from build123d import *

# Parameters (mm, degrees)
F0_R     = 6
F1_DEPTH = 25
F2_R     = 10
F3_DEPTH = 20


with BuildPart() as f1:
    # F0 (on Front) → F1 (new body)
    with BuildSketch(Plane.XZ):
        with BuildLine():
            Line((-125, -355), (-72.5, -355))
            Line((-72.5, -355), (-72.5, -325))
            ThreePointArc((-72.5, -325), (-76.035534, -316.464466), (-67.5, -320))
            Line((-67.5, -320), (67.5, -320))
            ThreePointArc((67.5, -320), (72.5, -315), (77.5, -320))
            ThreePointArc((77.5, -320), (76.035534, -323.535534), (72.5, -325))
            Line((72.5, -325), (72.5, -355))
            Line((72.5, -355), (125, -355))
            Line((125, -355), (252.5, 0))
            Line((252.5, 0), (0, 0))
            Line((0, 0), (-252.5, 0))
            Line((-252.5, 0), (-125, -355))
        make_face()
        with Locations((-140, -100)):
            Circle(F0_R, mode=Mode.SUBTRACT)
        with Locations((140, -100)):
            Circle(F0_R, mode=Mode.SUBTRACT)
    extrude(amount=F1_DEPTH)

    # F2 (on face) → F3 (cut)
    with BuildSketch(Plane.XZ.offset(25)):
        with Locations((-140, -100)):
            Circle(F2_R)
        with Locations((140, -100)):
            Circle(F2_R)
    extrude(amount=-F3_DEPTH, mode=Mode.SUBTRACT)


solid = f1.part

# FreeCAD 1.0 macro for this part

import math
import FreeCAD as App
import Part
import Sketcher
from FreeCAD import Vector

doc = App.newDocument("Part")
body = doc.addObject("PartDesign::Body", "Body")

sketch1 = body.newObject("Sketcher::SketchObject", "Sketch")
sketch1.AttachmentSupport = (doc.getObject("XZ_Plane"), [""])
sketch1.MapMode = "FlatFace"
sketch1.addGeometry([
    Part.LineSegment(Vector(-125, -355, 0), Vector(-72.5, -355, 0)),
    Part.LineSegment(Vector(-72.5, -355, 0), Vector(-72.5, -325, 0)),
    Part.ArcOfCircle(Part.Circle(Vector(-72.5, -320, 0), Vector(0, 0, 1), 5), math.radians(0), math.radians(270)),
    Part.LineSegment(Vector(-67.5, -320, 0), Vector(67.5, -320, 0)),
    Part.ArcOfCircle(Part.Circle(Vector(72.5, -320, 0), Vector(0, 0, 1), 5), math.radians(0), math.radians(180)),
    Part.ArcOfCircle(Part.Circle(Vector(72.5, -320, 0), Vector(0, 0, 1), 5), math.radians(-90), math.radians(0)),
    Part.LineSegment(Vector(72.5, -325, 0), Vector(72.5, -355, 0)),
    Part.LineSegment(Vector(72.5, -355, 0), Vector(125, -355, 0)),
    Part.LineSegment(Vector(125, -355, 0), Vector(252.5, 0, 0)),
    Part.LineSegment(Vector(252.5, 0, 0), Vector(-252.5, 0, 0)),
    Part.LineSegment(Vector(-252.5, 0, 0), Vector(-125, -355, 0)),
    Part.Circle(Vector(-140, -100, 0), Vector(0, 0, 1), 6),
    Part.Circle(Vector(140, -100, 0), Vector(0, 0, 1), 6),
], False)
sketch1.addConstraint([
    Sketcher.Constraint("Coincident", 0, 2, 1, 1),
    Sketcher.Constraint("Coincident", 1, 2, 2, 2),
    Sketcher.Constraint("Coincident", 2, 1, 3, 1),
    Sketcher.Constraint("Coincident", 3, 2, 4, 2),
    Sketcher.Constraint("Tangent", 4, 1, 5, 2),
    Sketcher.Constraint("Coincident", 5, 1, 6, 1),
    Sketcher.Constraint("Coincident", 6, 2, 7, 1),
    Sketcher.Constraint("Coincident", 7, 2, 8, 1),
    Sketcher.Constraint("Coincident", 8, 2, 9, 1),
    Sketcher.Constraint("Coincident", 9, 2, 10, 1),
    Sketcher.Constraint("Coincident", 10, 2, 0, 1),
    Sketcher.Constraint("Horizontal", 0),
    Sketcher.Constraint("Vertical", 1),
    Sketcher.Constraint("Horizontal", 3),
    Sketcher.Constraint("Vertical", 6),
    Sketcher.Constraint("Horizontal", 7),
    Sketcher.Constraint("Horizontal", 9),
    Sketcher.Constraint("Equal", 2, 4),
    Sketcher.Constraint("Equal", 4, 5),
    Sketcher.Constraint("Equal", 11, 12),
    Sketcher.Constraint("Symmetric", 8, 2, 9, 2, -1, 1),
    Sketcher.Constraint("Symmetric", 2, 3, 4, 3, -2),
    Sketcher.Constraint("Symmetric", 11, 3, 12, 3, -2),
    Sketcher.Constraint("Symmetric", 0, 2, 6, 2, -2),
    Sketcher.Constraint("Horizontal", 5, 3, 2, 1),
    Sketcher.Constraint("Horizontal", 3, 2, 4, 1),
    Sketcher.Constraint("Vertical", 2, 3, 0, 2),
    Sketcher.Constraint("Equal", 0, 7),
    Sketcher.Constraint("Diameter", 11, 12.0),
    Sketcher.Constraint("Radius", 2, 5.0),
    Sketcher.Constraint("DistanceX", 3, 1, 3, 2, 135.0),
    Sketcher.Constraint("DistanceX", 9, 2, 9, 1, 505.0),
    Sketcher.Constraint("DistanceY", 1, 1, 1, 2, 30.0),
    Sketcher.Constraint("DistanceX", 0, 1, 0, 2, 52.5),
    Sketcher.Constraint("DistanceY", 2, 3, -1, 1, 320.0),
    Sketcher.Constraint("DistanceX", 11, 3, -1, 1, 140.0),
    Sketcher.Constraint("DistanceY", 11, 3, -1, 1, 100.0),
])
pad1 = body.newObject("PartDesign::Pad", "Pad")
pad1.Profile = sketch1
pad1.Length = 25

sketch2 = body.newObject("Sketcher::SketchObject", "Sketch001")
sketch2.AttachmentSupport = (doc.getObject("XZ_Plane"), [""])
sketch2.MapMode = "FlatFace"
sketch2.AttachmentOffset = App.Placement(Vector(0, 0, 25), App.Rotation())
sketch2.addGeometry([
    Part.Circle(Vector(-140, -100, 0), Vector(0, 0, 1), 10),
    Part.Circle(Vector(140, -100, 0), Vector(0, 0, 1), 10),
], False)
sketch2.addConstraint([
    Sketcher.Constraint("Equal", 0, 1),
    Sketcher.Constraint("Symmetric", 0, 3, 1, 3, -2),
    Sketcher.Constraint("Diameter", 0, 20.0),
    Sketcher.Constraint("DistanceX", 0, 3, -1, 1, 140.0),
    Sketcher.Constraint("DistanceY", 0, 3, -1, 1, 100.0),
])
pocket1 = body.newObject("PartDesign::Pocket", "Pocket")
pocket1.Profile = sketch2
pocket1.Length = 20

doc.recompute()
